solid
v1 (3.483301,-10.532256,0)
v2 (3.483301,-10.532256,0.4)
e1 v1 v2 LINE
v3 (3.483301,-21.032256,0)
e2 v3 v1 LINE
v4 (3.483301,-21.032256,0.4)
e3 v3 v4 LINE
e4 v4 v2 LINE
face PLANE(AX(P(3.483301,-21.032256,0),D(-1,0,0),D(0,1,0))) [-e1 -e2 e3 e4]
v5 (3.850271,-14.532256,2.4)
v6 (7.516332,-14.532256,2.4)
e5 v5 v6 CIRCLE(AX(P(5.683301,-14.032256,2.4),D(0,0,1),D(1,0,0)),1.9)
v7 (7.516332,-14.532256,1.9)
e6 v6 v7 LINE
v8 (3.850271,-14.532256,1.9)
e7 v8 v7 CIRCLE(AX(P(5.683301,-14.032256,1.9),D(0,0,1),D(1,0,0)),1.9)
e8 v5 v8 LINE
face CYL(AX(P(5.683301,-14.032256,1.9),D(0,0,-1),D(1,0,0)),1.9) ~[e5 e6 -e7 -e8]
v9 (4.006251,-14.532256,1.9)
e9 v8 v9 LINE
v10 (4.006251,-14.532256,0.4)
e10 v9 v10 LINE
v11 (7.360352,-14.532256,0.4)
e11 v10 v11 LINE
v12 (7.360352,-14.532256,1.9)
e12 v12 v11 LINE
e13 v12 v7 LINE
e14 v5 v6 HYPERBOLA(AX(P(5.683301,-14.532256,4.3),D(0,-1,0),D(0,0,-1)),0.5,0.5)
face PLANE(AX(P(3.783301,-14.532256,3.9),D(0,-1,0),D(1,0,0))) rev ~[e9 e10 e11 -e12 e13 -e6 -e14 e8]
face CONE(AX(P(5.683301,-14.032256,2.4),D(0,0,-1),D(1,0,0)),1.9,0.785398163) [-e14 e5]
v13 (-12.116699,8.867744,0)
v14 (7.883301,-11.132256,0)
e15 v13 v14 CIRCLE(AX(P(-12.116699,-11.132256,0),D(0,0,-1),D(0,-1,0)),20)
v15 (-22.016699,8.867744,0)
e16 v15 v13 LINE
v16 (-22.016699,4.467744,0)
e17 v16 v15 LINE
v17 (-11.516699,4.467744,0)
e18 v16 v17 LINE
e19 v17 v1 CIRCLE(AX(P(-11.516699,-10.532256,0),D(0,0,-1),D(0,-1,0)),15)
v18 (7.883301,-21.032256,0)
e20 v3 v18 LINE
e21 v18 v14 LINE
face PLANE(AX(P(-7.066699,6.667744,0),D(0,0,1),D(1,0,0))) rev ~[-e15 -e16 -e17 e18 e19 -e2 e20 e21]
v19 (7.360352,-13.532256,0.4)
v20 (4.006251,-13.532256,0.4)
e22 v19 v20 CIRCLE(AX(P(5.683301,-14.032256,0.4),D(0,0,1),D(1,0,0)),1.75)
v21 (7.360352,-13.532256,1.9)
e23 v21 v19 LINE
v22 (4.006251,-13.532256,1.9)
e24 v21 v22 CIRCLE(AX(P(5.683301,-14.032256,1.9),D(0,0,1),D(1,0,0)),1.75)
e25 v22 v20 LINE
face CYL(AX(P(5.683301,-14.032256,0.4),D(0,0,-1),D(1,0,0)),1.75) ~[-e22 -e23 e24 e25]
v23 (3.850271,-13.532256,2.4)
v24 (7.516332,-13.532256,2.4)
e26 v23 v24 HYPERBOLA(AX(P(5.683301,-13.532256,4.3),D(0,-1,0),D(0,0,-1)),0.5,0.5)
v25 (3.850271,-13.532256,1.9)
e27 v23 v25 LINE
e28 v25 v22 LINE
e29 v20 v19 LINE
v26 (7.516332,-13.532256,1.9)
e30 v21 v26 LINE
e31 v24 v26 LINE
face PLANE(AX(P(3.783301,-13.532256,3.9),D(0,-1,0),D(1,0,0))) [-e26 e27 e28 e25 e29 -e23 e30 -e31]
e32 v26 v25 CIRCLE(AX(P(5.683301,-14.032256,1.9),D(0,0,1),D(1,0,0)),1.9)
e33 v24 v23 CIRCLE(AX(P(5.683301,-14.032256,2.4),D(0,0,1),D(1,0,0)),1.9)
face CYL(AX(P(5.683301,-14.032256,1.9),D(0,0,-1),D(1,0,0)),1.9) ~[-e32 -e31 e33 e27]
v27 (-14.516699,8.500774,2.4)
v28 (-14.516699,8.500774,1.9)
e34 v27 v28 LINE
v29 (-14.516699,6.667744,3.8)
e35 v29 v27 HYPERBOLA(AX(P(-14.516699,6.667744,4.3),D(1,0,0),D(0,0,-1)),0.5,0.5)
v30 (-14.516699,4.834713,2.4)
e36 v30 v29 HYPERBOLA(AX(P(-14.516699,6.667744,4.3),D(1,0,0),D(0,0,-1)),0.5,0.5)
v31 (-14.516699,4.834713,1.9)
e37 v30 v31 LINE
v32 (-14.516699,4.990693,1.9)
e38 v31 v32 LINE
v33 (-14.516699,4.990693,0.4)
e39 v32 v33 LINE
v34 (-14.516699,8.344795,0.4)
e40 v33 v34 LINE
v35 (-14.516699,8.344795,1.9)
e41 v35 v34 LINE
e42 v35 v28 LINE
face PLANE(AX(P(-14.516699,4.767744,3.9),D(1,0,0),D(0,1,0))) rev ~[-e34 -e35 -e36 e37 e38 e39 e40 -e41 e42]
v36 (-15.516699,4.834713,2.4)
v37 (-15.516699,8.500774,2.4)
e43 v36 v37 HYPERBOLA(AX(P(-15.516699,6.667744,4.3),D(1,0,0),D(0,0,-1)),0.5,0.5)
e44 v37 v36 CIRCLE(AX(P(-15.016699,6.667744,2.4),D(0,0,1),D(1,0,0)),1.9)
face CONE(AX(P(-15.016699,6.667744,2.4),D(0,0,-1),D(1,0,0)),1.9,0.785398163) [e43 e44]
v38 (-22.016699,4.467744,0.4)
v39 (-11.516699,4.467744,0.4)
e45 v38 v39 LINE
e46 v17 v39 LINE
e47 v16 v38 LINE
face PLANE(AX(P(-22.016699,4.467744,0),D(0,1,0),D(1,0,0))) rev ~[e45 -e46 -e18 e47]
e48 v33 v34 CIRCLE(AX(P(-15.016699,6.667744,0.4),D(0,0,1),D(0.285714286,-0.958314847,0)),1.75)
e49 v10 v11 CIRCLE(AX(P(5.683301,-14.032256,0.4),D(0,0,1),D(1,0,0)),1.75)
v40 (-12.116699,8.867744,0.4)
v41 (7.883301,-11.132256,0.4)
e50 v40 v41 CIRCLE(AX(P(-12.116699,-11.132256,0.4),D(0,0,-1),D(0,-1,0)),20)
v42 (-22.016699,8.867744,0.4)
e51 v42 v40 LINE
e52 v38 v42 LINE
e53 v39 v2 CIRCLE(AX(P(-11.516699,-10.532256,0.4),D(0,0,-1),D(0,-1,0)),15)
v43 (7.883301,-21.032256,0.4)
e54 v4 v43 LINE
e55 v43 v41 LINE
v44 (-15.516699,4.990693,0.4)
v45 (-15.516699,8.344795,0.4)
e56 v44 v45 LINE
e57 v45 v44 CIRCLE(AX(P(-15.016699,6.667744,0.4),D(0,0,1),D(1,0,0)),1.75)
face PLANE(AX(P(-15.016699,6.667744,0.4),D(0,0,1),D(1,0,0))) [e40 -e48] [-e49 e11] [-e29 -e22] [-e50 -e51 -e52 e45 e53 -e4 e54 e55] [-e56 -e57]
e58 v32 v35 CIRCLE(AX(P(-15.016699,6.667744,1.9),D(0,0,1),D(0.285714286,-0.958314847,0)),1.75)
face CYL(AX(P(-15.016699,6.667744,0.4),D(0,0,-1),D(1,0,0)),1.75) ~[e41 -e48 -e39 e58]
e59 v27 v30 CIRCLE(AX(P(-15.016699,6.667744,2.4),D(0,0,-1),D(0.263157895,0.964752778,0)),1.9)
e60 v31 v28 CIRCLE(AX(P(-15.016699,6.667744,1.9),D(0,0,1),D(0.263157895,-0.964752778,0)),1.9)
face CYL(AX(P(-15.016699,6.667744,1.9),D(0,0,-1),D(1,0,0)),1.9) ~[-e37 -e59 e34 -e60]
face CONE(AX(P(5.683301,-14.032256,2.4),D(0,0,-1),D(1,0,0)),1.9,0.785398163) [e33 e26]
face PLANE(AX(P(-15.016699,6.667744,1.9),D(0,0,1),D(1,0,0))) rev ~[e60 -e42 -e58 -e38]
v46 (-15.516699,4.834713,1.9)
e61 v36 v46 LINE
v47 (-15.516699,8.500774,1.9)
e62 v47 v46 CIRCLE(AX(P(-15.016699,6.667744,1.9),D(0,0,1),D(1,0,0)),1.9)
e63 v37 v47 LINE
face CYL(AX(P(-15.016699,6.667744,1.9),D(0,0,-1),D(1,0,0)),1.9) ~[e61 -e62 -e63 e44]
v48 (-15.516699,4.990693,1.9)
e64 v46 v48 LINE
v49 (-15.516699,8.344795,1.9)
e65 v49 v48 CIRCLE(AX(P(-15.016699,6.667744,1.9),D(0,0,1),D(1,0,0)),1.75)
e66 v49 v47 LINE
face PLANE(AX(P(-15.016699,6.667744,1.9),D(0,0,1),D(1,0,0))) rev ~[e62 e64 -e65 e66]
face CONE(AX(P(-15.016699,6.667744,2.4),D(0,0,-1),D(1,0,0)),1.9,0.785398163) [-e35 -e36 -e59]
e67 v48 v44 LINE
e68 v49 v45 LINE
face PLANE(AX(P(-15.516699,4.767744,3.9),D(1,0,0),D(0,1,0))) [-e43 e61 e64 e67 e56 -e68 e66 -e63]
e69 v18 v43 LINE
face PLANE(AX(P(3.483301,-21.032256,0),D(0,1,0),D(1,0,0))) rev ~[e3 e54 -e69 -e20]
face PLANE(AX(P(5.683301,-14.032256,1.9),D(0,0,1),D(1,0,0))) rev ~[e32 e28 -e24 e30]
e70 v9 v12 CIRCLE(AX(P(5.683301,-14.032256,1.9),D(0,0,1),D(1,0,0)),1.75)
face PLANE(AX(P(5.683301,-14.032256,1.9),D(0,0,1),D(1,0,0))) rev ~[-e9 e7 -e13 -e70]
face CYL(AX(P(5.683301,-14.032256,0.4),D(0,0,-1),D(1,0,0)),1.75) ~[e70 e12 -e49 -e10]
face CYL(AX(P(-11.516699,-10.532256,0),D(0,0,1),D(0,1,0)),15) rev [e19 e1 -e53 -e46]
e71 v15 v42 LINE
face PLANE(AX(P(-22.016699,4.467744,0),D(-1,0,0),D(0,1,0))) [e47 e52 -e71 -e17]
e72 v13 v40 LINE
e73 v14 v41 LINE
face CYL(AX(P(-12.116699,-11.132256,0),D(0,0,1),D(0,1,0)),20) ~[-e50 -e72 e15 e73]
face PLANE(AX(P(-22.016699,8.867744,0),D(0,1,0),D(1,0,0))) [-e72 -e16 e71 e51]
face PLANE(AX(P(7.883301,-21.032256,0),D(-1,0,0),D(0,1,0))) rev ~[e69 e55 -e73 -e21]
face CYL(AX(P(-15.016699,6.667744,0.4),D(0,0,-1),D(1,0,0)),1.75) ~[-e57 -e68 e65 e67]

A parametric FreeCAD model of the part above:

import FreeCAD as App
import Part
import Sketcher
from FreeCAD import Vector


def edges_at(feature, points):
    """Names of the edges that pass closest to the given points."""
    edges = feature.Shape.Edges
    near = lambda p: min(range(len(edges)), key=lambda i: edges[i].distToShape(Part.Vertex(*p))[0])
    return sorted({f"Edge{near(p) + 1}" for p in points})

doc = App.newDocument("Part")
params = doc.addObject("Spreadsheet::Sheet", "Params")
for row, (alias, value) in enumerate([
    ("sketch1_width", "25.5 mm"),
    ("sketch1_width2", "4.4 mm"),
    ("pad1_length", "0.4 mm"),
    ("fillet_radius", "15 mm"),
    ("fillet2_radius", "20 mm"),
    ("sketch2_diameter", "3.5 mm"),
    ("pad2_length", "1.5 mm"),
    ("sketch3_diameter", "3.8 mm"),
    ("pad3_length", "2 mm"),
    ("chamfer_size", "1.5 mm"),
    ("sketch4_width", "1 mm"),
    ("sketch4_width2", "3.8 mm"),
    ("pocket1_length", "3.5 mm"),
], start=1):
    params.set(f"A{row}", alias)
    params.set(f"B{row}", "=" + value)
    params.setAlias(f"B{row}", alias)

body = doc.addObject("PartDesign::Body", "Body")

# Sketch on XY plane
sketch1 = body.newObject("Sketcher::SketchObject", "Sketch")
sketch1.AttachmentSupport = (doc.getObject("XY_Plane"), [""])
sketch1.MapMode = "FlatFace"
sketch1.addGeometry([
    Part.LineSegment(Vector(-22, 8.9, 0), Vector(-22, 4.5, 0)),  # 0
    Part.LineSegment(Vector(-22, 4.5, 0), Vector(3.5, 4.5, 0)),  # 1
    Part.LineSegment(Vector(3.5, 4.5, 0), Vector(3.5, -21, 0)),  # 2
    Part.LineSegment(Vector(3.5, -21, 0), Vector(7.9, -21, 0)),  # 3
    Part.LineSegment(Vector(7.9, -21, 0), Vector(7.9, 8.9, 0)),  # 4
    Part.LineSegment(Vector(7.9, 8.9, 0), Vector(-22, 8.9, 0)),  # 5
], False)
sketch1.addConstraint([
    Sketcher.Constraint("Coincident", 0, 2, 1, 1),
    Sketcher.Constraint("Coincident", 1, 2, 2, 1),
    Sketcher.Constraint("Coincident", 2, 2, 3, 1),
    Sketcher.Constraint("Coincident", 3, 2, 4, 1),
    Sketcher.Constraint("Coincident", 4, 2, 5, 1),
    Sketcher.Constraint("Coincident", 5, 2, 0, 1),
    Sketcher.Constraint("Vertical", 0),
    Sketcher.Constraint("Horizontal", 1),
    Sketcher.Constraint("Vertical", 2),
    Sketcher.Constraint("Horizontal", 3),
    Sketcher.Constraint("Vertical", 4),
    Sketcher.Constraint("Horizontal", 5),
    Sketcher.Constraint("Equal", 3, 0),
    Sketcher.Constraint("Equal", 1, 2),
    Sketcher.Constraint("DistanceX", 1, 1, 1, 2, 25.5),
    Sketcher.Constraint("DistanceX", 3, 1, 3, 2, 4.4),
    Sketcher.Constraint("DistanceX", 0, 2, -1, 1, 22.016699),
    Sketcher.Constraint("DistanceY", -1, 1, 0, 2, 4.467744),
])
sketch1.setExpression("Constraints[14]", "Params.sketch1_width")
sketch1.setExpression("Constraints[15]", "Params.sketch1_width2")
pad1 = body.newObject("PartDesign::Pad", "Pad")
pad1.Profile = sketch1
pad1.setExpression("Length", "Params.pad1_length")
doc.recompute()

fillet = body.newObject("PartDesign::Fillet", "Fillet")
fillet.Base = (pad1, edges_at(pad1, [(3.483, 4.468, 0.2)]))
fillet.setExpression("Radius", "Params.fillet_radius")
doc.recompute()

fillet2 = body.newObject("PartDesign::Fillet", "Fillet001")
fillet2.Base = (fillet, edges_at(fillet, [(7.883, 8.868, 0.2)]))
fillet2.setExpression("Radius", "Params.fillet2_radius")

# Sketch on XY plane
sketch2 = body.newObject("Sketcher::SketchObject", "Sketch001")
sketch2.AttachmentSupport = (doc.getObject("XY_Plane"), [""])
sketch2.MapMode = "FlatFace"
sketch2.AttachmentOffset = App.Placement(Vector(0, 0, 0.4), App.Rotation())
sketch2.addGeometry([
    Part.Circle(Vector(-15, 6.7, 0), Vector(0, 0, 1), 1.8),
    Part.Circle(Vector(5.7, -14, 0), Vector(0, 0, 1), 1.8),
], False)
sketch2.addConstraint([
    Sketcher.Constraint("Equal", 0, 1),
    Sketcher.Constraint("Diameter", 0, 3.5),
    Sketcher.Constraint("DistanceX", 0, 3, 1, 3, 20.7),
    Sketcher.Constraint("DistanceY", 1, 3, 0, 3, 20.7),
    Sketcher.Constraint("DistanceX", 0, 3, -1, 1, 15.016699),
    Sketcher.Constraint("DistanceY", -1, 1, 0, 3, 6.667744),
])
sketch2.setExpression("Constraints[1]", "Params.sketch2_diameter")
pad2 = body.newObject("PartDesign::Pad", "Pad001")
pad2.Profile = sketch2
pad2.setExpression("Length", "Params.pad2_length")

# Sketch on XY plane
sketch3 = body.newObject("Sketcher::SketchObject", "Sketch002")
sketch3.AttachmentSupport = (doc.getObject("XY_Plane"), [""])
sketch3.MapMode = "FlatFace"
sketch3.AttachmentOffset = App.Placement(Vector(0, 0, 1.9), App.Rotation())
sketch3.addGeometry([
    Part.Circle(Vector(-15, 6.7, 0), Vector(0, 0, 1), 1.9),
    Part.Circle(Vector(5.7, -14, 0), Vector(0, 0, 1), 1.9),
], False)
sketch3.addConstraint([
    Sketcher.Constraint("Equal", 0, 1),
    Sketcher.Constraint("Diameter", 0, 3.8),
    Sketcher.Constraint("DistanceX", 0, 3, 1, 3, 20.7),
    Sketcher.Constraint("DistanceY", 1, 3, 0, 3, 20.7),
    Sketcher.Constraint("DistanceX", 0, 3, -1, 1, 15.016699),
    Sketcher.Constraint("DistanceY", -1, 1, 0, 3, 6.667744),
])
sketch3.setExpression("Constraints[1]", "Params.sketch3_diameter")
pad3 = body.newObject("PartDesign::Pad", "Pad002")
pad3.Profile = sketch3
pad3.setExpression("Length", "Params.pad3_length")
doc.recompute()

chamfer = body.newObject("PartDesign::Chamfer", "Chamfer")
chamfer.Base = (pad3, edges_at(pad3, [(3.783, -14.032, 3.9), (-16.917, 6.668, 3.9)]))
chamfer.setExpression("Size", "Params.chamfer_size")

# Sketch on XY plane
sketch4 = body.newObject("Sketcher::SketchObject", "Sketch003")
sketch4.AttachmentSupport = (doc.getObject("XY_Plane"), [""])
sketch4.MapMode = "FlatFace"
sketch4.AttachmentOffset = App.Placement(Vector(0, 0, 3.9), App.Rotation())
sketch4.addGeometry([
    Part.LineSegment(Vector(3.8, -13.5, 0), Vector(3.8, -14.5, 0)),  # 0
    Part.LineSegment(Vector(3.8, -14.5, 0), Vector(7.6, -14.5, 0)),  # 1
    Part.LineSegment(Vector(7.6, -14.5, 0), Vector(7.6, -13.5, 0)),  # 2
    Part.LineSegment(Vector(7.6, -13.5, 0), Vector(3.8, -13.5, 0)),  # 3
    Part.LineSegment(Vector(-15.5, 8.6, 0), Vector(-15.5, 4.8, 0)),  # 4
    Part.LineSegment(Vector(-15.5, 4.8, 0), Vector(-14.5, 4.8, 0)),  # 5
    Part.LineSegment(Vector(-14.5, 4.8, 0), Vector(-14.5, 8.6, 0)),  # 6
    Part.LineSegment(Vector(-14.5, 8.6, 0), Vector(-15.5, 8.6, 0)),  # 7
], False)
sketch4.addConstraint([
    Sketcher.Constraint("Coincident", 0, 2, 1, 1),
    Sketcher.Constraint("Coincident", 1, 2, 2, 1),
    Sketcher.Constraint("Coincident", 2, 2, 3, 1),
    Sketcher.Constraint("Coincident", 3, 2, 0, 1),
    Sketcher.Constraint("Coincident", 4, 2, 5, 1),
    Sketcher.Constraint("Coincident", 5, 2, 6, 1),
    Sketcher.Constraint("Coincident", 6, 2, 7, 1),
    Sketcher.Constraint("Coincident", 7, 2, 4, 1),
    Sketcher.Constraint("Vertical", 0),
    Sketcher.Constraint("Horizontal", 1),
    Sketcher.Constraint("Vertical", 2),
    Sketcher.Constraint("Horizontal", 3),
    Sketcher.Constraint("Vertical", 4),
    Sketcher.Constraint("Horizontal", 5),
    Sketcher.Constraint("Vertical", 6),
    Sketcher.Constraint("Horizontal", 7),
    Sketcher.Constraint("Equal", 7, 0),
    Sketcher.Constraint("Equal", 3, 4),
    Sketcher.Constraint("DistanceX", 5, 1, 5, 2, 1.0),
    Sketcher.Constraint("DistanceX", 1, 1, 1, 2, 3.8),
    Sketcher.Constraint("DistanceX", 4, 2, 3, 2, 19.3),
    Sketcher.Constraint("DistanceY", 3, 2, 4, 2, 18.3),
    Sketcher.Constraint("DistanceX", -1, 1, 0, 2, 3.783301),
    Sketcher.Constraint("DistanceY", 0, 2, -1, 1, 14.532256),
])
sketch4.setExpression("Constraints[18]", "Params.sketch4_width")
sketch4.setExpression("Constraints[19]", "Params.sketch4_width2")
pocket1 = body.newObject("PartDesign::Pocket", "Pocket")
pocket1.Profile = sketch4
pocket1.setExpression("Length", "Params.pocket1_length")

doc.recompute()
